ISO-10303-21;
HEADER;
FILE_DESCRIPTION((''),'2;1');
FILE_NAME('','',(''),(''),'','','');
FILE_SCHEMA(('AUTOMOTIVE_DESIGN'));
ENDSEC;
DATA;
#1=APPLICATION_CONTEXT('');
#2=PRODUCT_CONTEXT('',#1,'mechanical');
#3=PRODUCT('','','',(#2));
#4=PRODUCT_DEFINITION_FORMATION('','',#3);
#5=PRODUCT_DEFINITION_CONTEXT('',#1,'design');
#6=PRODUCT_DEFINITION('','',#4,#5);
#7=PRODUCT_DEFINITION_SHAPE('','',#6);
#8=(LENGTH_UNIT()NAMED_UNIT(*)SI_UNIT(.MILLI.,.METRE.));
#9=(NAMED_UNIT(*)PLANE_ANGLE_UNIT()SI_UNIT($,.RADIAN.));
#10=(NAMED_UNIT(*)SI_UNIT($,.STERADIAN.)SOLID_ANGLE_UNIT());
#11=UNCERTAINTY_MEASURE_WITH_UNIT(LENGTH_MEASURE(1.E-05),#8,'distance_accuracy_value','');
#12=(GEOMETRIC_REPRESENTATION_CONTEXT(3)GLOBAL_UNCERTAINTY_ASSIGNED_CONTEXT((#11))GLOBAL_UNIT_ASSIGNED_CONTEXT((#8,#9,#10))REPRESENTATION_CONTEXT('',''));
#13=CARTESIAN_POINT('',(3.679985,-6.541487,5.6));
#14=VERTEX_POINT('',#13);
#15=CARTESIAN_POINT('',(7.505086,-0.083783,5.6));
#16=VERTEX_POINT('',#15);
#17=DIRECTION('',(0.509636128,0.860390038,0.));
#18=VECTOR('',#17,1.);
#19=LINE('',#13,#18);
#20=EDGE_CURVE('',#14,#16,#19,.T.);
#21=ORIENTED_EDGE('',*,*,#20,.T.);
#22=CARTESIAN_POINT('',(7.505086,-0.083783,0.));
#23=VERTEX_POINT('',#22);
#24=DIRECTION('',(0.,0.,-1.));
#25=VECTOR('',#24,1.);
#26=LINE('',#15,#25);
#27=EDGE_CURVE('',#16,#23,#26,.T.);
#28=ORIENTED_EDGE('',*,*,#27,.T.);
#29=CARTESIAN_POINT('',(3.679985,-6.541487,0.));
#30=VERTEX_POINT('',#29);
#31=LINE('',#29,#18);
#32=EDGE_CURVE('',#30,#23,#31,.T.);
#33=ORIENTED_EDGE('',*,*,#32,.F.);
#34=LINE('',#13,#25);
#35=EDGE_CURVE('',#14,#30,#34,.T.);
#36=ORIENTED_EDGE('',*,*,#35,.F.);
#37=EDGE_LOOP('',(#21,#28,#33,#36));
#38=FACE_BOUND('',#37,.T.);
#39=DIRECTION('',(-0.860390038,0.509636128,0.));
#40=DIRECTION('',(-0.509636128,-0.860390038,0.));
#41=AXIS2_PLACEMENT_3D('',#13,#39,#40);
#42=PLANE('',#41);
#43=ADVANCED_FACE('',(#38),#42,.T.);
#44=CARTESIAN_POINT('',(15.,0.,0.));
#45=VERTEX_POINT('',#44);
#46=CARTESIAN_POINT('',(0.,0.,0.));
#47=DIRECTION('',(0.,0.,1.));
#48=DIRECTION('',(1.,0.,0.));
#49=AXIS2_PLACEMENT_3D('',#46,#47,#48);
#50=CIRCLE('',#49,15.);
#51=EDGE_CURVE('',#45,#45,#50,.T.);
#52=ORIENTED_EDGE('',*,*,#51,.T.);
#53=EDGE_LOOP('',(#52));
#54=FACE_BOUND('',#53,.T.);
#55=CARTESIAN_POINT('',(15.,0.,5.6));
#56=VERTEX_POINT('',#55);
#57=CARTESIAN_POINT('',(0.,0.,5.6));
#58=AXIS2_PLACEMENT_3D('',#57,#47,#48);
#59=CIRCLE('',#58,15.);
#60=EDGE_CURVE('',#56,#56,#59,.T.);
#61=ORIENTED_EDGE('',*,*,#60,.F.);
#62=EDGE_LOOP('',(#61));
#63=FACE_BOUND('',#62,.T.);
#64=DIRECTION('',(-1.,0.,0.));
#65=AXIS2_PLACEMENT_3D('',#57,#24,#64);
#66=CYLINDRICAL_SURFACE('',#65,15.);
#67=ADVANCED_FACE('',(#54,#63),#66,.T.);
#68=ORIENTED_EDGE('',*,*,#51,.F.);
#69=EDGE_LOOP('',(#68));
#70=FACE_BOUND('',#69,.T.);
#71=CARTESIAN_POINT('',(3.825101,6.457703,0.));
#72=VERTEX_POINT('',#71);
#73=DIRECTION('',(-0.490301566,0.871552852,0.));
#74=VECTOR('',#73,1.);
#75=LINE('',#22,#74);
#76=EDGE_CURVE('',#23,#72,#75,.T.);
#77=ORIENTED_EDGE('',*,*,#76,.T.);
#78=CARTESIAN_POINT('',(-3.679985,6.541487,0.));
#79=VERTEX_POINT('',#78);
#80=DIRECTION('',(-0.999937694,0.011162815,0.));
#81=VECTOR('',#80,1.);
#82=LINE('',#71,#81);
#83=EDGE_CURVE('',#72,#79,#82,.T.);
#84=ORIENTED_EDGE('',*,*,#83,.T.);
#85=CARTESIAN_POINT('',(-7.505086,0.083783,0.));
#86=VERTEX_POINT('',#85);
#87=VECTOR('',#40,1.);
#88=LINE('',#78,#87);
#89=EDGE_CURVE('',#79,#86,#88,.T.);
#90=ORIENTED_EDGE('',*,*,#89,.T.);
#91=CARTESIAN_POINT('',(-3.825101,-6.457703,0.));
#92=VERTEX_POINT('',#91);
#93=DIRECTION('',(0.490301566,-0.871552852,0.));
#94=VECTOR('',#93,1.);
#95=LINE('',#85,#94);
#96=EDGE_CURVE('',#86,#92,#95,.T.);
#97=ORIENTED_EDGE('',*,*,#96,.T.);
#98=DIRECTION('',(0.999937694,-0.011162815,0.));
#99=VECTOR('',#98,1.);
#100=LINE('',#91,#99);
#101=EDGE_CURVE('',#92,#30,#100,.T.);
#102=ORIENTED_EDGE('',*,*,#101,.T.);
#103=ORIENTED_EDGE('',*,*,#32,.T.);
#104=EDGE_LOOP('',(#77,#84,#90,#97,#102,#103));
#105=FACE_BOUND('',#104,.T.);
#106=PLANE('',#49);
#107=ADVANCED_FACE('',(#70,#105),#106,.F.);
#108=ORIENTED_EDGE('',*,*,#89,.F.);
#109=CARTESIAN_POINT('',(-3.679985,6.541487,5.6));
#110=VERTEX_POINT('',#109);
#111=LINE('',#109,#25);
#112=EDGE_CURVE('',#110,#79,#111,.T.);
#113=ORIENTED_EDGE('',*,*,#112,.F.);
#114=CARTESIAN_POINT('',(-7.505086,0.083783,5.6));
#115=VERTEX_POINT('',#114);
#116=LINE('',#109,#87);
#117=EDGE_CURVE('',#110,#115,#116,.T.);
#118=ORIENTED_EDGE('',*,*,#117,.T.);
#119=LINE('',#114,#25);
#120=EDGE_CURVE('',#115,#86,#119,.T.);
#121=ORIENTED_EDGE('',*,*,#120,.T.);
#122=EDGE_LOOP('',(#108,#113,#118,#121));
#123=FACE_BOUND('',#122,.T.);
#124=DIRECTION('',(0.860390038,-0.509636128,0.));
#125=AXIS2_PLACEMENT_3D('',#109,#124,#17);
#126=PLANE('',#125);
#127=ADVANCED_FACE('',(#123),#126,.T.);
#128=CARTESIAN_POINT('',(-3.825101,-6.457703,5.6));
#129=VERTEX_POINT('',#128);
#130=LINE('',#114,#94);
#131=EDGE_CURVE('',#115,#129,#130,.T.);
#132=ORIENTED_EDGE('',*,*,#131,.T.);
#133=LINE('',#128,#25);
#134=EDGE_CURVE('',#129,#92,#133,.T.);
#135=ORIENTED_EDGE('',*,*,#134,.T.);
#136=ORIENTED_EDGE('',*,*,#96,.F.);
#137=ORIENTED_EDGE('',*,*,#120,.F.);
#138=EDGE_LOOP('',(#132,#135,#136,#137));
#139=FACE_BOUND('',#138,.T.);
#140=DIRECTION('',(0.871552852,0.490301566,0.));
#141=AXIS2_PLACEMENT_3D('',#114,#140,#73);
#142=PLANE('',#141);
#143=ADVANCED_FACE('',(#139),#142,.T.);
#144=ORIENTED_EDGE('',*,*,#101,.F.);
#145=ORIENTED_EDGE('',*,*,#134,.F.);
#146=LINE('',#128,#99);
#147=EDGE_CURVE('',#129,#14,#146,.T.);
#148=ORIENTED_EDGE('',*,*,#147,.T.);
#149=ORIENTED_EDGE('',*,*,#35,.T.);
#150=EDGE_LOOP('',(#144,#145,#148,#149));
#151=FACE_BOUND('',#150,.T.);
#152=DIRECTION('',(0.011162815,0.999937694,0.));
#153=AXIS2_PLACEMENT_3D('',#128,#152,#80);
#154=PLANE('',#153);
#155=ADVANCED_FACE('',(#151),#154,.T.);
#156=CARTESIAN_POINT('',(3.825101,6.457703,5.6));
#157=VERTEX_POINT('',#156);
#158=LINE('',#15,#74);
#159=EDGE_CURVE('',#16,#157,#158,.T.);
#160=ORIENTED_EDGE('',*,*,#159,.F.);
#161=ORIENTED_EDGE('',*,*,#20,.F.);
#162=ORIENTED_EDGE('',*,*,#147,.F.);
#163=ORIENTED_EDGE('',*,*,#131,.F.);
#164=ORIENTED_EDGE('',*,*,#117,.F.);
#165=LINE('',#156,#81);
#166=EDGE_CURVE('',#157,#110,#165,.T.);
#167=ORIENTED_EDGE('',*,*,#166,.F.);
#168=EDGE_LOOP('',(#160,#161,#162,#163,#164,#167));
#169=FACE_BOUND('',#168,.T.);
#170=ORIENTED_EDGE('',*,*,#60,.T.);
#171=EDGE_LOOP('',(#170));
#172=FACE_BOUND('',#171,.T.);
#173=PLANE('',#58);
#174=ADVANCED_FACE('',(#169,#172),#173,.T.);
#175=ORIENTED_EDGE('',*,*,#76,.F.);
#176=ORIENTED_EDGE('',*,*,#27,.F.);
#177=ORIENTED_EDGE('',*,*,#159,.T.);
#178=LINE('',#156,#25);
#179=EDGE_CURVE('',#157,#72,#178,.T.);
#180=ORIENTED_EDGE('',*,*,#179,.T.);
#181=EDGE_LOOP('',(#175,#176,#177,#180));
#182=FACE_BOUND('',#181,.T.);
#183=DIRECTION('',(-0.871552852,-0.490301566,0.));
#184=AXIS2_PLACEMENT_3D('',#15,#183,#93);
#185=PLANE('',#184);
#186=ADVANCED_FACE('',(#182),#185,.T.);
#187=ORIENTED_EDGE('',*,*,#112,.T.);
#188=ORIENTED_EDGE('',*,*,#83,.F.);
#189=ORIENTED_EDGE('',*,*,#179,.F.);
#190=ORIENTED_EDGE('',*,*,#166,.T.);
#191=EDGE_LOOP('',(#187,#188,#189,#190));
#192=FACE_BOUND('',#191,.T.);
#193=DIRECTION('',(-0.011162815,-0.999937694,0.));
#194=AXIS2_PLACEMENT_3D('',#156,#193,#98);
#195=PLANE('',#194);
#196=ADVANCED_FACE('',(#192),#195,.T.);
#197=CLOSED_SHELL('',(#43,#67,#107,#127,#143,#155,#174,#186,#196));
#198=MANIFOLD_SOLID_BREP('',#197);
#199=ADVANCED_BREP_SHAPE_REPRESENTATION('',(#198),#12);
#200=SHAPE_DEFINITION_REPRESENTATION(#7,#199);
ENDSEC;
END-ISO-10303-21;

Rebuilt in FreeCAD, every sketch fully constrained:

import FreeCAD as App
import Part
import Sketcher
Q = App.Units.Quantity


def add_polygon(sketch, points):
    """Adds a closed chain of lines whose ends are joined by coincident constraints."""
    first, n = sketch.GeometryCount, len(points)
    for a, b in zip(points, points[1:] + points[:1]):
        sketch.addGeometry(Part.LineSegment(App.Vector(*a, 0), App.Vector(*b, 0)), False)
    for i in range(n):
        sketch.addConstraint(Sketcher.Constraint("Coincident", first + i, 2, first + (i + 1) % n, 1))

doc = App.newDocument("Part")
body = doc.addObject("PartDesign::Body", "Body")

sketch1 = doc.addObject("Sketcher::SketchObject", "Sketch")
body.addObject(sketch1)
sketch1.AttachmentSupport = (doc.XY_Plane, [""])
sketch1.MapMode = "FlatFace"
sketch1.addGeometry(Part.Circle(App.Vector(0, 0, 0), App.Vector(0, 0, 1), 15), False)
add_polygon(sketch1, [(7.505086, -0.083783), (3.679985, -6.541487), (-3.825101, -6.457703), (-7.505086, 0.083783), (-3.679985, 6.541487), (3.825101, 6.457703)])
sketch1.addConstraint([
    Sketcher.Constraint("Coincident", 0, 3, -1, 1),
    Sketcher.Constraint("Symmetric", 1, 2, 4, 2, -1, 1),
    Sketcher.Constraint("Symmetric", 2, 2, 5, 2, -1, 1),
    Sketcher.Constraint("Symmetric", 3, 2, 6, 2, -1, 1),
    Sketcher.Constraint("Equal", 1, 2),
    Sketcher.Constraint("Equal", 2, 3),
    Sketcher.Constraint("Diameter", 0, Q("30 mm")),
    Sketcher.Constraint("DistanceX", 2, 2, -1, 1, Q("3.825101 mm")),
    Sketcher.Constraint("DistanceX", 3, 2, 4, 2, Q("3.825101 mm")),
    Sketcher.Constraint("DistanceX", 3, 2, 1, 2, Q("11.18507 mm")),
    Sketcher.Constraint("DistanceY", 1, 2, 3, 2, Q("6.62527 mm")),
])
pad1 = doc.addObject("PartDesign::Pad", "Pad")
body.addObject(pad1)
pad1.Profile = sketch1
pad1.Length = 5.6

doc.recompute()
